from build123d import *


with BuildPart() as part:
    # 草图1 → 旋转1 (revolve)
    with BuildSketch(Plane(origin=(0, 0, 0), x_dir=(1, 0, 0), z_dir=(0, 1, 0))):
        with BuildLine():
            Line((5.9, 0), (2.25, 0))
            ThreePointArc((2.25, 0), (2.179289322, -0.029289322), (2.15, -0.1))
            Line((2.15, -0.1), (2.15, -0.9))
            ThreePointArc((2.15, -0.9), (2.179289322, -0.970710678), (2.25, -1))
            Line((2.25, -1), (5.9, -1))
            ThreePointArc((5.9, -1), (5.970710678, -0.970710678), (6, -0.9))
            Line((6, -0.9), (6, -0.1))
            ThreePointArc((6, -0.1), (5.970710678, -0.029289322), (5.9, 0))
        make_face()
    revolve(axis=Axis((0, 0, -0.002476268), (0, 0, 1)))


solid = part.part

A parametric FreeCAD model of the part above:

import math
import FreeCAD as App
import Part
import Sketcher

V = App.Vector

doc = App.newDocument("Part")
body = doc.addObject("PartDesign::Body", "Body")

# Sketch on XZ plane
sketch1 = body.newObject("Sketcher::SketchObject", "Sketch")
sketch1.AttachmentSupport = (doc.getObject("XZ_Plane"), [""])
sketch1.MapMode = "FlatFace"
sketch1.addGeometry([
    Part.LineSegment(V(5.9, 0, 0), V(2.25, 0, 0)),  # 0
    Part.ArcOfCircle(Part.Circle(V(2.25, 0.1, 0), V(0, 0, 1), 0.1), math.radians(180), math.radians(270)),  # 1
    Part.LineSegment(V(2.15, 0.1, 0), V(2.15, 0.9, 0)),  # 2
    Part.ArcOfCircle(Part.Circle(V(2.25, 0.9, 0), V(0, 0, 1), 0.1), math.radians(90), math.radians(180)),  # 3
    Part.LineSegment(V(2.25, 1, 0), V(5.9, 1, 0)),  # 4
    Part.ArcOfCircle(Part.Circle(V(5.9, 0.9, 0), V(0, 0, 1), 0.1), math.radians(0), math.radians(90)),  # 5
    Part.LineSegment(V(6, 0.9, 0), V(6, 0.1, 0)),  # 6
    Part.ArcOfCircle(Part.Circle(V(5.9, 0.1, 0), V(0, 0, 1), 0.1), math.radians(-90), math.radians(0)),  # 7
], False)
sketch1.addConstraint([
    Sketcher.Constraint("Tangent", 0, 2, 1, 2),
    Sketcher.Constraint("Tangent", 1, 1, 2, 1),
    Sketcher.Constraint("Tangent", 2, 2, 3, 2),
    Sketcher.Constraint("Tangent", 3, 1, 4, 1),
    Sketcher.Constraint("Tangent", 4, 2, 5, 2),
    Sketcher.Constraint("Tangent", 5, 1, 6, 1),
    Sketcher.Constraint("Tangent", 6, 2, 7, 2),
    Sketcher.Constraint("Tangent", 7, 1, 0, 1),
    Sketcher.Constraint("Horizontal", 0),
    Sketcher.Constraint("Vertical", 2),
    Sketcher.Constraint("Horizontal", 4),
    Sketcher.Constraint("Vertical", 6),
    Sketcher.Constraint("Equal", 1, 3),
    Sketcher.Constraint("Equal", 3, 5),
    Sketcher.Constraint("Equal", 5, 7),
    Sketcher.Constraint("PointOnObject", 0, 2, -1),
    Sketcher.Constraint("Radius", 1, 0.1),
    Sketcher.Constraint("DistanceY", 2, 1, 2, 2, 0.8),
    Sketcher.Constraint("DistanceX", -1, 1, 5, 1, 6.0),
    Sketcher.Constraint("DistanceX", 0, 2, 0, 1, 3.65),
])
revolution = body.newObject("PartDesign::Revolution", "Revolution")
revolution.Profile = sketch1
revolution.ReferenceAxis = (sketch1, ["V_Axis"])
revolution.Angle = 360

doc.recompute()
